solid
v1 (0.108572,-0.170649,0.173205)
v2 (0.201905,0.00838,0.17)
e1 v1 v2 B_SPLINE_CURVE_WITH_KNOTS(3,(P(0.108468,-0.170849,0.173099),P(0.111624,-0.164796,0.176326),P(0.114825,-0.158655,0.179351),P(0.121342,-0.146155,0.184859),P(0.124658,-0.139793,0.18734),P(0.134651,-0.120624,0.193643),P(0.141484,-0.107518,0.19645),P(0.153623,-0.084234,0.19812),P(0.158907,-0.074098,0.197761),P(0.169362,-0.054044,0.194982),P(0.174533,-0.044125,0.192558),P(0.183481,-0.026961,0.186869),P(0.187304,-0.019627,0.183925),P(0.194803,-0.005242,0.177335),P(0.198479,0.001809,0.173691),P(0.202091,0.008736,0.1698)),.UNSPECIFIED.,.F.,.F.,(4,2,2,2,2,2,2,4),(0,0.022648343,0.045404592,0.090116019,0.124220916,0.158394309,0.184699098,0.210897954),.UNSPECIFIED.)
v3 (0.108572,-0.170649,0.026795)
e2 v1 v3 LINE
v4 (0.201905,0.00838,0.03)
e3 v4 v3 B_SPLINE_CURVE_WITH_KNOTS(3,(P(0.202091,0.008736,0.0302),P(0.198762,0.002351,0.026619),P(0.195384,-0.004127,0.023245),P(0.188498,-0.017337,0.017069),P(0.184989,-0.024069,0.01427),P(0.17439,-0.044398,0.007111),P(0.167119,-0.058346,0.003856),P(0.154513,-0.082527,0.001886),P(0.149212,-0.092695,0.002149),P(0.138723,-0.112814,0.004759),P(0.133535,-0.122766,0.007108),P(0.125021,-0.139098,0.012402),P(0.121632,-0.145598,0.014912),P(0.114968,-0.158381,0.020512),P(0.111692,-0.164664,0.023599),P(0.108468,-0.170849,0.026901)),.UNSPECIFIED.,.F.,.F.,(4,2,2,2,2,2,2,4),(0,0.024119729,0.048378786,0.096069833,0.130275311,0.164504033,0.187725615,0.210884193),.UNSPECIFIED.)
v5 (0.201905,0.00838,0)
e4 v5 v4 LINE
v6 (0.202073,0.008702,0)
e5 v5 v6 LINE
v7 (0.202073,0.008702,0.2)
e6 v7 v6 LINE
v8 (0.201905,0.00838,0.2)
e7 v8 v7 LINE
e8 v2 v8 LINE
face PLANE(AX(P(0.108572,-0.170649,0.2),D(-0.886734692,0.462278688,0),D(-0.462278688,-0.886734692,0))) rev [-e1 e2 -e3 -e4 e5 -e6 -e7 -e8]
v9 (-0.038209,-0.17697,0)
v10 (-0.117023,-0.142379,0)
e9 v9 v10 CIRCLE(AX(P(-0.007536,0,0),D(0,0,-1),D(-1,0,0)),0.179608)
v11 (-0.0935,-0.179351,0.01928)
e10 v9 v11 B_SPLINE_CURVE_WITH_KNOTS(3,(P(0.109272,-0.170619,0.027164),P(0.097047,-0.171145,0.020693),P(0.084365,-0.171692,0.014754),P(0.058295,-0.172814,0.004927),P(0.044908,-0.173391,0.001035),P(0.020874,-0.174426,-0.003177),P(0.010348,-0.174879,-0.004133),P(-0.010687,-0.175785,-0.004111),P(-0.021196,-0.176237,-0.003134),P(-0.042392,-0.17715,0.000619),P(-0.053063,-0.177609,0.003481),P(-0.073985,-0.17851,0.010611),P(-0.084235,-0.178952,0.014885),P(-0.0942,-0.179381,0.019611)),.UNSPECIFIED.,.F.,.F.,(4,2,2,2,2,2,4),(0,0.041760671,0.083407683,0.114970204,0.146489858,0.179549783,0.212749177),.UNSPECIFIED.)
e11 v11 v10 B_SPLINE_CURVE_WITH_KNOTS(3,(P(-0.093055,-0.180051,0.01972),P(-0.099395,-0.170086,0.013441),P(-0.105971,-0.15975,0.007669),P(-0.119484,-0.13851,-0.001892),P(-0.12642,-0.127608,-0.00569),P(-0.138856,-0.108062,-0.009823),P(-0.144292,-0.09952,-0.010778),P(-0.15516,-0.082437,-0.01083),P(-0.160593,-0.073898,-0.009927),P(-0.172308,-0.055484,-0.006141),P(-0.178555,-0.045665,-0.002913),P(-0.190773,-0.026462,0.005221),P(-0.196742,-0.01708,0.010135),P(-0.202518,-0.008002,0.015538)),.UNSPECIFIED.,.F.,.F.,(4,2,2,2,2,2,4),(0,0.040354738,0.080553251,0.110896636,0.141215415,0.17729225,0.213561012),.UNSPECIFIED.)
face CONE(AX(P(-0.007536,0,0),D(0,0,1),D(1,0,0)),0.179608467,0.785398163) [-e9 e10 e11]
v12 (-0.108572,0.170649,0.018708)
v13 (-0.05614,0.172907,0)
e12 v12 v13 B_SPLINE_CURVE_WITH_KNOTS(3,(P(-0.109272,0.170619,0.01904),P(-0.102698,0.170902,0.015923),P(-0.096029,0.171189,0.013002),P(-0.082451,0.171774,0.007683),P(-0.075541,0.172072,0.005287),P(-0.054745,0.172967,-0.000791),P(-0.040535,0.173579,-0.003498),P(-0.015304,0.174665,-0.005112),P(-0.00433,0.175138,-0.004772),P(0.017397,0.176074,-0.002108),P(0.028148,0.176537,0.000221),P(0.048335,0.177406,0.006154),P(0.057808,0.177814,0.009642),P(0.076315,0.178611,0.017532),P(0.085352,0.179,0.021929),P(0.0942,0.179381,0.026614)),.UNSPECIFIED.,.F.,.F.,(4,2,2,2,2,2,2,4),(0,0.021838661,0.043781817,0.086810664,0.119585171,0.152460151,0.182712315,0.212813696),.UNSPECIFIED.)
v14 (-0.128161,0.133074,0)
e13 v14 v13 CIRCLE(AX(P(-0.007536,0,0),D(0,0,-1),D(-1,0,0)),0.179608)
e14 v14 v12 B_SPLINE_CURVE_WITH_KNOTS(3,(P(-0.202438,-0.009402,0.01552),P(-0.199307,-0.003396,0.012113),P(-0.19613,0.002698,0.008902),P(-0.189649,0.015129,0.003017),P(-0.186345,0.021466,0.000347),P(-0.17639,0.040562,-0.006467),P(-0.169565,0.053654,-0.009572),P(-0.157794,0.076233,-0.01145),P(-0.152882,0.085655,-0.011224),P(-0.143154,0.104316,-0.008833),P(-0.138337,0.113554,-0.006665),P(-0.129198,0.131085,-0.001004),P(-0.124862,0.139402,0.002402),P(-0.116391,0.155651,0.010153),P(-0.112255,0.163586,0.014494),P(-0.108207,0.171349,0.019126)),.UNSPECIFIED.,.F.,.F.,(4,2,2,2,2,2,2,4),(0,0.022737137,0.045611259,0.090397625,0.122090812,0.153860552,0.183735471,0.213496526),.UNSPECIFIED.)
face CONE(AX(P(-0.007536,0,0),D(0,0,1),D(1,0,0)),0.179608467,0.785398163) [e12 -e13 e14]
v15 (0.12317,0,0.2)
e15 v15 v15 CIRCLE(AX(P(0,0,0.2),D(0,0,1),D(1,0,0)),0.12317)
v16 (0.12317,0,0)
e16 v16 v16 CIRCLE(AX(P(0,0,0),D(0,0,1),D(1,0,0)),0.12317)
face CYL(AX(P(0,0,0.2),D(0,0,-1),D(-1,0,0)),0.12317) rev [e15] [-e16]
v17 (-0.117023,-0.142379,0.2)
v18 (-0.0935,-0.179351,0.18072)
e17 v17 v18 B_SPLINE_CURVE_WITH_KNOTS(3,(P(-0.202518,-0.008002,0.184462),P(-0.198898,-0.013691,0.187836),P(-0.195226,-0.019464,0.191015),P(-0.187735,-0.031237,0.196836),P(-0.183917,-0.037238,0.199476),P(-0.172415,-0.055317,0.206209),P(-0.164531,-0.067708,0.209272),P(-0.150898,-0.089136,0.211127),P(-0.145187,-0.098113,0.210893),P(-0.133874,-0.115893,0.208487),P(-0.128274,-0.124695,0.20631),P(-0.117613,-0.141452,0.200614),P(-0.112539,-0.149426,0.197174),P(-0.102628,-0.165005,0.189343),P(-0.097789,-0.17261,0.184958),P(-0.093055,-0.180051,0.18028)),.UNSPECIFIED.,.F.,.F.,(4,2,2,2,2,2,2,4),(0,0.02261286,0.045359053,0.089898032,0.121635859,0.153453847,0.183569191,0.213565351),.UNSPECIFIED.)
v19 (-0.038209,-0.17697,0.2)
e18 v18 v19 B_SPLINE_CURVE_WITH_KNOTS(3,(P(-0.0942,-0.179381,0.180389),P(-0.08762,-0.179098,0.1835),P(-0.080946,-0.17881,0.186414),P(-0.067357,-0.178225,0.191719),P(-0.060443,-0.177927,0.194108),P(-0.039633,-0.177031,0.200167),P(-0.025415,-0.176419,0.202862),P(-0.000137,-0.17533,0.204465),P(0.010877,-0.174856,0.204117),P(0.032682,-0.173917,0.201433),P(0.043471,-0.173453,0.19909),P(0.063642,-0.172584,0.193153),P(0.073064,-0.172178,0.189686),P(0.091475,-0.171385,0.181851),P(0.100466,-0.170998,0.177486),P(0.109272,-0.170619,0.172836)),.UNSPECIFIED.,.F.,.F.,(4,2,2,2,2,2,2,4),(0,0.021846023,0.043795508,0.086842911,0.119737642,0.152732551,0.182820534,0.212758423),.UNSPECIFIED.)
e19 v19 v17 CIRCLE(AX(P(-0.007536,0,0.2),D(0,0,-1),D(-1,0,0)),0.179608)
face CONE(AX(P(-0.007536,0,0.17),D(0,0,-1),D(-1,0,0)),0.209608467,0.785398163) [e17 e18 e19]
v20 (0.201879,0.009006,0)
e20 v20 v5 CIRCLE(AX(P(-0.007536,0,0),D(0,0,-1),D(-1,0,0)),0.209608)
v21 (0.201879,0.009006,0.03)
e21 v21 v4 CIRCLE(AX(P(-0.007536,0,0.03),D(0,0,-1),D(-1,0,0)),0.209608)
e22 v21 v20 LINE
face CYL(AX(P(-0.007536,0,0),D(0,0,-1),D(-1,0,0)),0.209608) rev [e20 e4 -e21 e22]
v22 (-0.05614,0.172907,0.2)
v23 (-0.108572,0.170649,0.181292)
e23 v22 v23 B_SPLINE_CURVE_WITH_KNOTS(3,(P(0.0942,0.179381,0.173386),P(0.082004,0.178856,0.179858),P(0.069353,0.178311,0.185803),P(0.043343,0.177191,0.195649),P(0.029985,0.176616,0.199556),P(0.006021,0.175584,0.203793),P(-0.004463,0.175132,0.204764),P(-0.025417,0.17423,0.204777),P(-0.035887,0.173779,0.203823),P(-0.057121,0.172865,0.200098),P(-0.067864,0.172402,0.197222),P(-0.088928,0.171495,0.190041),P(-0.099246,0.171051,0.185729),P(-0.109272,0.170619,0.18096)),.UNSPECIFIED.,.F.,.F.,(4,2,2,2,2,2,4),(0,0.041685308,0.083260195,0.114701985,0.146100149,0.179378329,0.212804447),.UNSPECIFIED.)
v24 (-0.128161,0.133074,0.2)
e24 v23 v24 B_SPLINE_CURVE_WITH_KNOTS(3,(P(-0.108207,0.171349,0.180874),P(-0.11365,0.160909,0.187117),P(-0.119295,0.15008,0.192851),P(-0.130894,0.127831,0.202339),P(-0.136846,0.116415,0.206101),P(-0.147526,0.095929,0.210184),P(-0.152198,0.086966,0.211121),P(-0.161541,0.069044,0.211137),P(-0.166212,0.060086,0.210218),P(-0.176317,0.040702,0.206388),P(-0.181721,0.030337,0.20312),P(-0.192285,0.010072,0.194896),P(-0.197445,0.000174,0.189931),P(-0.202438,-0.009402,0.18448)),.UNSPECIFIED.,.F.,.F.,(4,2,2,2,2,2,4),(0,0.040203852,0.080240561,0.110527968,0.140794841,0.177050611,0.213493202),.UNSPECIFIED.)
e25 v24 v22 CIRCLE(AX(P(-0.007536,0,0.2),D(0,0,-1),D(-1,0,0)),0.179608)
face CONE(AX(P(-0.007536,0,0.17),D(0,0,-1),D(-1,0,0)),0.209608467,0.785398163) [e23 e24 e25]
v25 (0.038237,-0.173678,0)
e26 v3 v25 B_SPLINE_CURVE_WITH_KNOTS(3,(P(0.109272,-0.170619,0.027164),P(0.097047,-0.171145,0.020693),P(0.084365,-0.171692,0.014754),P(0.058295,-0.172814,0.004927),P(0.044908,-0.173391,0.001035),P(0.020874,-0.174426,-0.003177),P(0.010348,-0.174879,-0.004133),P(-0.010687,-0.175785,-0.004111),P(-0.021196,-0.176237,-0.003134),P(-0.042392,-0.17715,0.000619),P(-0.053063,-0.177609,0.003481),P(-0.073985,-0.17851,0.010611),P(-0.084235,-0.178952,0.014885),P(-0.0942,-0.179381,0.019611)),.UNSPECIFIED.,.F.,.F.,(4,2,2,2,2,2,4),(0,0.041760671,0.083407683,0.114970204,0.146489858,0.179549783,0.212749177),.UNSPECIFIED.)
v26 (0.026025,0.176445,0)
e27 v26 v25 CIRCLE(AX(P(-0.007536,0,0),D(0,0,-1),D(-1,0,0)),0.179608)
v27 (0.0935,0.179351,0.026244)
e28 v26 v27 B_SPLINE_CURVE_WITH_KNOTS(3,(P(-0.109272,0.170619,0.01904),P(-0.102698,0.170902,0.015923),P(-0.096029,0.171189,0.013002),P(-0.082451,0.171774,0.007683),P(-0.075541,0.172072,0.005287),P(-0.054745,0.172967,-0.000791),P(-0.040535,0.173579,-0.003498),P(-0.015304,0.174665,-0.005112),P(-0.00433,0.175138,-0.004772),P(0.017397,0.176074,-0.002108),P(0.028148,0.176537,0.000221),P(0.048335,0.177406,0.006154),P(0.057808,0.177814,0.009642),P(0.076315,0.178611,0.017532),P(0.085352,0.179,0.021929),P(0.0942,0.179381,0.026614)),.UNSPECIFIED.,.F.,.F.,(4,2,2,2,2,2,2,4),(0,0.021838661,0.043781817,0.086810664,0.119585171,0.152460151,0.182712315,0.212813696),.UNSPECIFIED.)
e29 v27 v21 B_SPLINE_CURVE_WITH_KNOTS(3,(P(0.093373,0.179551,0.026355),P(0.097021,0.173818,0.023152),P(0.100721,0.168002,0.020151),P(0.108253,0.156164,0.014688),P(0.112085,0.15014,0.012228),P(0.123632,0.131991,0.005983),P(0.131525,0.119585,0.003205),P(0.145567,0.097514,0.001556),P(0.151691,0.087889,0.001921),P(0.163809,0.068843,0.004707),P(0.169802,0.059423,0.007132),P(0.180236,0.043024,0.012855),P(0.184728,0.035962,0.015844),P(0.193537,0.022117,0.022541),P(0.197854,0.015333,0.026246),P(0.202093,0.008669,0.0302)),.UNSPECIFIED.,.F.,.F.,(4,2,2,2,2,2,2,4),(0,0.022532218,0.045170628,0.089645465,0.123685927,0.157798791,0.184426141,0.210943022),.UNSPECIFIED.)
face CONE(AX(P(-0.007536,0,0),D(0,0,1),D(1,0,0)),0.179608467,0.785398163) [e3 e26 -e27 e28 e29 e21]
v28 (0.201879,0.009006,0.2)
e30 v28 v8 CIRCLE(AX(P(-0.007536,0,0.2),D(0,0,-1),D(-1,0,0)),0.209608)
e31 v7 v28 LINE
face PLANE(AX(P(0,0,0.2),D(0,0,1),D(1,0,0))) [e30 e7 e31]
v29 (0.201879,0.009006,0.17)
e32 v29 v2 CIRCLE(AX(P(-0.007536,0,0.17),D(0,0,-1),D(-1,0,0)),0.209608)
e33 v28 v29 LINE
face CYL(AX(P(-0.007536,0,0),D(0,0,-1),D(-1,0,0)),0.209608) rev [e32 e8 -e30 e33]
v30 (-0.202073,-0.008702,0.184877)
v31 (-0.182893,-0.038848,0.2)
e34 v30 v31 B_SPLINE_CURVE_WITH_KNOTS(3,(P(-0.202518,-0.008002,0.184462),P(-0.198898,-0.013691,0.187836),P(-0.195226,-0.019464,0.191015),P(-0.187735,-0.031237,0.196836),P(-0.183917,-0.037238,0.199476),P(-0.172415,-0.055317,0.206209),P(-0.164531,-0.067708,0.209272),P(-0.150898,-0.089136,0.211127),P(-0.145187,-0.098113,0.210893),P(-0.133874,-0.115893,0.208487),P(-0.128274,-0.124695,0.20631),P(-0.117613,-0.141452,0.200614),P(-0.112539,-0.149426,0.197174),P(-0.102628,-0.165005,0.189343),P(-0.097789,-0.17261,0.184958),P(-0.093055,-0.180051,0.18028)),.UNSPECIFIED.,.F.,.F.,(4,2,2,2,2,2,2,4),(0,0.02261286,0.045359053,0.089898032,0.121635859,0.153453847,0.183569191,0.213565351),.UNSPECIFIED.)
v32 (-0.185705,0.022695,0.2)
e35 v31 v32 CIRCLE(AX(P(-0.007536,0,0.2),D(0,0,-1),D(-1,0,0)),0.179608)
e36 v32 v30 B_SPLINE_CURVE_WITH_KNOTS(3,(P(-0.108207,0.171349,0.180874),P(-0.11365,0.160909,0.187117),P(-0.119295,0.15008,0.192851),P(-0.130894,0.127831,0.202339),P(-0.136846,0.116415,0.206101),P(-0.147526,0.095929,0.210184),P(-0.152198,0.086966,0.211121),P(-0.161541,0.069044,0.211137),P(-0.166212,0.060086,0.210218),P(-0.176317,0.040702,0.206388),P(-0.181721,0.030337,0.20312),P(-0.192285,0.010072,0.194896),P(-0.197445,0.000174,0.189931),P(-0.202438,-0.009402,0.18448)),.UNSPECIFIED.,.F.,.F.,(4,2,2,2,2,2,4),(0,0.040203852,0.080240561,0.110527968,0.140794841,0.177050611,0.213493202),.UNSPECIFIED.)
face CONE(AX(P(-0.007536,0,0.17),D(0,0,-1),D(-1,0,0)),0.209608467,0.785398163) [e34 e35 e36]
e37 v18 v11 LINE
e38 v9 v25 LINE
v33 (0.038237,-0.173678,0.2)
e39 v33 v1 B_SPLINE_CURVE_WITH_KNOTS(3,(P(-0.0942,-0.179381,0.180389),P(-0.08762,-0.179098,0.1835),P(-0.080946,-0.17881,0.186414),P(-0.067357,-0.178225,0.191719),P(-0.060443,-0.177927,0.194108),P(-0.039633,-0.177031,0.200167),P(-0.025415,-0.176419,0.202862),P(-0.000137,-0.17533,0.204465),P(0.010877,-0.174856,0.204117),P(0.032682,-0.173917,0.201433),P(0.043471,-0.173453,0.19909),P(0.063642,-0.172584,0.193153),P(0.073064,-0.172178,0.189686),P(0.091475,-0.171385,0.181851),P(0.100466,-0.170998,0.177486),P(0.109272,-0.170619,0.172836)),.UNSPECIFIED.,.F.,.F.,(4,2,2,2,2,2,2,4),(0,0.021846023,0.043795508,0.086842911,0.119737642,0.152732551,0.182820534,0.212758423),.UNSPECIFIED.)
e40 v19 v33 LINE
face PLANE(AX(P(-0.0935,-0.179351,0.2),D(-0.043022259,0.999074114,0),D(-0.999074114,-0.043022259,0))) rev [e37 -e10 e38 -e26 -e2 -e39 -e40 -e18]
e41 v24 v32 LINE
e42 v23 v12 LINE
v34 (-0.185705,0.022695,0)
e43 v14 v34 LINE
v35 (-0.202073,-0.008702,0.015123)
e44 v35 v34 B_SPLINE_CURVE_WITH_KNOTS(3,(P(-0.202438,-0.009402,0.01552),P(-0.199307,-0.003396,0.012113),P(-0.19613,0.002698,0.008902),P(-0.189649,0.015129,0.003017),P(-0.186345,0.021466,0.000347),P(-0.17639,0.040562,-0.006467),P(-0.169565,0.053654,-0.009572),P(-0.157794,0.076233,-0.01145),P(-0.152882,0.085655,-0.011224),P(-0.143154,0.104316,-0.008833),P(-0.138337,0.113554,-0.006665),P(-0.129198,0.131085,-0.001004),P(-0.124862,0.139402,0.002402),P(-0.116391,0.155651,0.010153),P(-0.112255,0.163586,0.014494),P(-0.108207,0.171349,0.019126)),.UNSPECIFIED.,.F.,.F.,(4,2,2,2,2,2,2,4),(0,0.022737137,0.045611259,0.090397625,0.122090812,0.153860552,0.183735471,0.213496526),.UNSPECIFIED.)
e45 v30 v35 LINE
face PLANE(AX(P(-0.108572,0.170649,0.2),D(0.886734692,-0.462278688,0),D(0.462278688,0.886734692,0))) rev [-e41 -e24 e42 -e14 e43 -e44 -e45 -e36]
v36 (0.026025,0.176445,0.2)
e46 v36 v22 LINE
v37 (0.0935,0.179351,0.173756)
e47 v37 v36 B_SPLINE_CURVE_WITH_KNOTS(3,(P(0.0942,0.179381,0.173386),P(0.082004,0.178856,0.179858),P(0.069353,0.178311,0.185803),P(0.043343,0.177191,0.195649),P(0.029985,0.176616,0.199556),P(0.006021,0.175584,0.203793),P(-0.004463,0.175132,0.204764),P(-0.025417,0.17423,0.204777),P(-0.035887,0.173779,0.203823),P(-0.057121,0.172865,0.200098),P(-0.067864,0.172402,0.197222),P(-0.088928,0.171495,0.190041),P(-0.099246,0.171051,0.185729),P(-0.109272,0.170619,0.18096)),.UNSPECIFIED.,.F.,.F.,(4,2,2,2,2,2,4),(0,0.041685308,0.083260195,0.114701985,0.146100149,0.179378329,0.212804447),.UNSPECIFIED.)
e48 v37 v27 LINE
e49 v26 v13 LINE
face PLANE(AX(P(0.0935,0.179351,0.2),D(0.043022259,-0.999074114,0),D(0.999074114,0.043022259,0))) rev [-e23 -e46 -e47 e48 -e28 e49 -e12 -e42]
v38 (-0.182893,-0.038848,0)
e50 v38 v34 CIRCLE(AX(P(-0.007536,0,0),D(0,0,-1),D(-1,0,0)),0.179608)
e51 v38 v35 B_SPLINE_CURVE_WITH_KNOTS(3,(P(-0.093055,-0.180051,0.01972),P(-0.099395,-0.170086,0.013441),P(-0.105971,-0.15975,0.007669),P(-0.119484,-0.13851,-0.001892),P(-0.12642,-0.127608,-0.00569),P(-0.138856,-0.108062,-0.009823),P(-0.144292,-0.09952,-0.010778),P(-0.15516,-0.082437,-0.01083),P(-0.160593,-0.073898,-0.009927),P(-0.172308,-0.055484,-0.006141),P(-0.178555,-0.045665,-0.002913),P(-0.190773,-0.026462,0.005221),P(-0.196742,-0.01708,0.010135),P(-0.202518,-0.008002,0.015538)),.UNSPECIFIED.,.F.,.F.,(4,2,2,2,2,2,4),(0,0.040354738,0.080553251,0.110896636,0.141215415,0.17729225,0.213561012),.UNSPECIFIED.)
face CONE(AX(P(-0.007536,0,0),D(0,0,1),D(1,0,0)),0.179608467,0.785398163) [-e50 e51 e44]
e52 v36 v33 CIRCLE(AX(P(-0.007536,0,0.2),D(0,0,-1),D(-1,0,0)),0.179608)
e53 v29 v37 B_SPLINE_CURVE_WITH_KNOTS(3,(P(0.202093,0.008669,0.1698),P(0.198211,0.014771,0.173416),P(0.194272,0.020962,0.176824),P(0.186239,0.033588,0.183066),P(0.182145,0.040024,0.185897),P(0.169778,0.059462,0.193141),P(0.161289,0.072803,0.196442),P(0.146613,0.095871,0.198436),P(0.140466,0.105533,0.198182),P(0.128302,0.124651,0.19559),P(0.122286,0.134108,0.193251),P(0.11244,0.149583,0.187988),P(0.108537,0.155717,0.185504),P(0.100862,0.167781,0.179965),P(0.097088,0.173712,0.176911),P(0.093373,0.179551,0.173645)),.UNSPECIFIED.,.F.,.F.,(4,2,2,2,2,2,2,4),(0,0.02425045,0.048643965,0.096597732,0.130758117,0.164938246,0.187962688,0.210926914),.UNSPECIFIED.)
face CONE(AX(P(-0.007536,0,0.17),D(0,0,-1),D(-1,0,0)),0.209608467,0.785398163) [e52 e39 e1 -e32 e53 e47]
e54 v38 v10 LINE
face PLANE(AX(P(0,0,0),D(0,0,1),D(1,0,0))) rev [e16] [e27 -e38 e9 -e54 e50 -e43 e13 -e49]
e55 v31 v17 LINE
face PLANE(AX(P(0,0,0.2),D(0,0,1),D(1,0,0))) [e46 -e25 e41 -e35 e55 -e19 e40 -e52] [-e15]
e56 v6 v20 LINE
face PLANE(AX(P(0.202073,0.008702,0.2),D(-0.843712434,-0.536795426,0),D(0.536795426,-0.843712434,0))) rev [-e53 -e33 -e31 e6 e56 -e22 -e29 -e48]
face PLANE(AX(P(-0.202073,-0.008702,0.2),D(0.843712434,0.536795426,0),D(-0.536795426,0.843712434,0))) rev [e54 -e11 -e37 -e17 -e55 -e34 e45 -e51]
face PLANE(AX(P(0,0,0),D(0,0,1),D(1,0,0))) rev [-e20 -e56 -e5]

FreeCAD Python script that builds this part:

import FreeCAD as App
import Part
import Sketcher

V = App.Vector

doc = App.newDocument("Part")
body = doc.addObject("PartDesign::Body", "Body")

# Sketch on XY plane
sketch1 = body.newObject("Sketcher::SketchObject", "Sketch")
sketch1.AttachmentSupport = (doc.getObject("XY_Plane"), [""])
sketch1.MapMode = "FlatFace"
sketch1.addGeometry([
    Part.LineSegment(V(-0.11, 0.17, 0), V(-0.2, -0.01, 0)),  # 0
    Part.LineSegment(V(-0.2, -0.01, 0), V(-0.09, -0.18, 0)),  # 1
    Part.LineSegment(V(-0.09, -0.18, 0), V(0.11, -0.17, 0)),  # 2
    Part.LineSegment(V(0.11, -0.17, 0), V(0.2, 0.01, 0)),  # 3
    Part.LineSegment(V(0.2, 0.01, 0), V(0.09, 0.18, 0)),  # 4
    Part.LineSegment(V(0.09, 0.18, 0), V(-0.11, 0.17, 0)),  # 5
    Part.Circle(V(0, 0, 0), V(0, 0, 1), 0.12),  # 6
], False)
sketch1.addConstraint([
    Sketcher.Constraint("Coincident", 0, 2, 1, 1),
    Sketcher.Constraint("Coincident", 1, 2, 2, 1),
    Sketcher.Constraint("Coincident", 2, 2, 3, 1),
    Sketcher.Constraint("Coincident", 3, 2, 4, 1),
    Sketcher.Constraint("Coincident", 4, 2, 5, 1),
    Sketcher.Constraint("Coincident", 5, 2, 0, 1),
    Sketcher.Constraint("Coincident", 6, 3, -1, 1),
    Sketcher.Constraint("Symmetric", 0, 2, 3, 2, -1, 1),
    Sketcher.Constraint("Symmetric", 1, 2, 4, 2, -1, 1),
    Sketcher.Constraint("Symmetric", 2, 2, 5, 2, -1, 1),
    Sketcher.Constraint("Equal", 0, 1),
    Sketcher.Constraint("Equal", 1, 2),
    Sketcher.Constraint("Diameter", 6, 0.24634),
    Sketcher.Constraint("DistanceY", 2, 2, 4, 2, 0.35),
    Sketcher.Constraint("DistanceX", 1, 2, 4, 2, 0.187001),
    Sketcher.Constraint("DistanceY", 0, 2, -1, 1, 0.008702),
    Sketcher.Constraint("DistanceY", 1, 2, 2, 2, 0.008702),
])
pad1 = body.newObject("PartDesign::Pad", "Pad")
pad1.Profile = sketch1
pad1.Length = 0.2

# Sketch on XZ plane
sketch2 = body.newObject("Sketcher::SketchObject", "Sketch001")
sketch2.AttachmentSupport = (doc.getObject("XZ_Plane"), [""])
sketch2.MapMode = "FlatFace"
sketch2.addGeometry([
    Part.LineSegment(V(0.202, 0, 0), V(0.172, 0, 0)),  # 0
    Part.LineSegment(V(0.172, 0, 0), V(0.202, 0.03, 0)),  # 1
    Part.LineSegment(V(0.202, 0.03, 0), V(0.202, 0, 0)),  # 2
    Part.LineSegment(V(0.202, 0.2, 0), V(0.202, 0.17, 0)),  # 3
    Part.LineSegment(V(0.202, 0.17, 0), V(0.172, 0.2, 0)),  # 4
    Part.LineSegment(V(0.172, 0.2, 0), V(0.202, 0.2, 0)),  # 5
], False)
sketch2.addGeometry(Part.LineSegment(V(-0.008, 0, 0), V(-0.008, 0.2, 0)), True)  # axis
sketch2.addConstraint([
    Sketcher.Constraint("Coincident", 0, 2, 1, 1),
    Sketcher.Constraint("Coincident", 1, 2, 2, 1),
    Sketcher.Constraint("Coincident", 2, 2, 0, 1),
    Sketcher.Constraint("Coincident", 3, 2, 4, 1),
    Sketcher.Constraint("Coincident", 4, 2, 5, 1),
    Sketcher.Constraint("Coincident", 5, 2, 3, 1),
    Sketcher.Constraint("Horizontal", 0),
    Sketcher.Constraint("Vertical", 2),
    Sketcher.Constraint("Vertical", 3),
    Sketcher.Constraint("Horizontal", 5),
    Sketcher.Constraint("Vertical", 6),
    Sketcher.Constraint("PointOnObject", 0, 2, -1),
    Sketcher.Constraint("PointOnObject", 6, 1, -1),
    Sketcher.Constraint("Perpendicular", 1, 4),
    Sketcher.Constraint("Horizontal", 5, 2, 6, 2),
    Sketcher.Constraint("Vertical", 2, 2, 3, 2),
    Sketcher.Constraint("Vertical", 0, 2, 4, 2),
    Sketcher.Constraint("Equal", 5, 2),
    Sketcher.Constraint("DistanceY", 6, 1, 6, 2, 0.2),
    Sketcher.Constraint("DistanceX", 0, 2, 0, 1, 0.03),
    Sketcher.Constraint("DistanceX", 6, 1, 0, 2, 0.179608),
    Sketcher.Constraint("DistanceX", -1, 1, 0, 2, 0.172073),
])
groove = body.newObject("PartDesign::Groove", "Groove")
groove.Profile = sketch2
groove.ReferenceAxis = (sketch2, ["Axis0"])
groove.Angle = 360

doc.recompute()
